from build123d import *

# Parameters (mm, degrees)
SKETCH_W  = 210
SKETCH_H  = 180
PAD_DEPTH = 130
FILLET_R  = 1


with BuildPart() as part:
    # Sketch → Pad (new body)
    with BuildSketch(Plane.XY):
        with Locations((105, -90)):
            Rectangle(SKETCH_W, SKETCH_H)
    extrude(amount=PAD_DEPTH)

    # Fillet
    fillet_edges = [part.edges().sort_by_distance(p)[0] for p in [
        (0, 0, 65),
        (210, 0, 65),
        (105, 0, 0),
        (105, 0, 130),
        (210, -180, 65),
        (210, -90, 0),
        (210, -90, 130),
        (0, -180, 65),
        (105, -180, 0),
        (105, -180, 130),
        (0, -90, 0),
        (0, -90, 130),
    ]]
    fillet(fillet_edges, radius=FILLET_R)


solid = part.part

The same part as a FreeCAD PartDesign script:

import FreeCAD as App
import Part
import Sketcher

V = App.Vector
Q = App.Units.Quantity

doc = App.newDocument("Part")
body = doc.addObject("PartDesign::Body", "Body")

# Sketch on XY plane
sketch1 = body.newObject("Sketcher::SketchObject", "Sketch")
sketch1.AttachmentSupport = (doc.getObject("XY_Plane"), [""])
sketch1.MapMode = "FlatFace"
sketch1.addGeometry(Part.LineSegment(V(0, 0, 0), V(0, -180, 0)), False)
sketch1.addGeometry(Part.LineSegment(V(0, -180, 0), V(210, -180, 0)), False)
sketch1.addGeometry(Part.LineSegment(V(210, -180, 0), V(210, 0, 0)), False)
sketch1.addGeometry(Part.LineSegment(V(210, 0, 0), V(0, 0, 0)), False)
sketch1.addConstraint(Sketcher.Constraint("Coincident", 0, 2, 1, 1))
sketch1.addConstraint(Sketcher.Constraint("Coincident", 1, 2, 2, 1))
sketch1.addConstraint(Sketcher.Constraint("Coincident", 2, 2, 3, 1))
sketch1.addConstraint(Sketcher.Constraint("Coincident", 3, 2, 0, 1))
sketch1.addConstraint(Sketcher.Constraint("Vertical", 0))
sketch1.addConstraint(Sketcher.Constraint("Horizontal", 1))
sketch1.addConstraint(Sketcher.Constraint("Vertical", 2))
sketch1.addConstraint(Sketcher.Constraint("Horizontal", 3))
sketch1.addConstraint(Sketcher.Constraint("Coincident", 3, 2, -1, 1))
sketch1.addConstraint(Sketcher.Constraint("DistanceX", 1, 1, 1, 2, Q("210 mm")))
sketch1.addConstraint(Sketcher.Constraint("DistanceY", 0, 2, 0, 1, Q("180 mm")))
pad1 = body.newObject("PartDesign::Pad", "Pad")
pad1.Profile = sketch1
pad1.Length = 130
doc.recompute()

fillet = body.newObject("PartDesign::Fillet", "Fillet")
fillet.Base = (pad1, ["Edge1"])
fillet.UseAllEdges = True
fillet.Radius = 1

doc.recompute()
